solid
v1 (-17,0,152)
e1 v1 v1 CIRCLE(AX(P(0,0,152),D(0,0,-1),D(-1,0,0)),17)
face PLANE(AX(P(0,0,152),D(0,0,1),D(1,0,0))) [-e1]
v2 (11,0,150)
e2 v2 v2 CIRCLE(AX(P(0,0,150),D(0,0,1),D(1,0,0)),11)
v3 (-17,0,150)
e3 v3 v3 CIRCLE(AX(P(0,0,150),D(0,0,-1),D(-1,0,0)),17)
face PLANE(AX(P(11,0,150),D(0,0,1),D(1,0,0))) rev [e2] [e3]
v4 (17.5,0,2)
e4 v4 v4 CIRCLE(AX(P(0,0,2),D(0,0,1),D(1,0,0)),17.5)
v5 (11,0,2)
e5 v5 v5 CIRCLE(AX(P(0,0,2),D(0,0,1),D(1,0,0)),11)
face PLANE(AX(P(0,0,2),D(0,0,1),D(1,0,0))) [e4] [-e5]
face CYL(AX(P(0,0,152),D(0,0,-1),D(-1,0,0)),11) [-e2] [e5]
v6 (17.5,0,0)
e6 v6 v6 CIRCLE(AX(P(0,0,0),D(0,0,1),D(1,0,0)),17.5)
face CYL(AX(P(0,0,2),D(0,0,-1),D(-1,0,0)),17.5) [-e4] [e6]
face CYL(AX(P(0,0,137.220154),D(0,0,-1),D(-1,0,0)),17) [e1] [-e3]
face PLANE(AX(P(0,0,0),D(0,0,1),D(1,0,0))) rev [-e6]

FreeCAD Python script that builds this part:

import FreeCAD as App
import Part
import Sketcher
Q = App.Units.Quantity


def add_polygon(sketch, points):
    """Adds a closed chain of lines whose ends are joined by coincident constraints."""
    first, n = sketch.GeometryCount, len(points)
    for a, b in zip(points, points[1:] + points[:1]):
        sketch.addGeometry(Part.LineSegment(App.Vector(*a, 0), App.Vector(*b, 0)), False)
    for i in range(n):
        sketch.addConstraint(Sketcher.Constraint("Coincident", first + i, 2, first + (i + 1) % n, 1))

doc = App.newDocument("Part")
body = doc.addObject("PartDesign::Body", "Body")

# Sketch on XY plane
sketch1 = body.newObject("Sketcher::SketchObject", "Sketch")
sketch1.AttachmentSupport = (doc.getObject("XY_Plane"), [""])
sketch1.MapMode = "FlatFace"
sketch1.addGeometry(Part.Circle(App.Vector(0, 0, 0), App.Vector(0, 0, 1), 18), False)
sketch1.addConstraint([
    Sketcher.Constraint("Coincident", 0, 3, -1, 1),
    Sketcher.Constraint("Diameter", 0, Q("35 mm")),
])
pad1 = body.newObject("PartDesign::Pad", "Pad")
pad1.Profile = sketch1
pad1.Length = 2

# Sketch on XY plane
sketch2 = body.newObject("Sketcher::SketchObject", "Sketch001")
sketch2.AttachmentSupport = (doc.getObject("XY_Plane"), [""])
sketch2.MapMode = "FlatFace"
sketch2.AttachmentOffset = App.Placement(App.Vector(0, 0, 2), App.Rotation())
sketch2.addGeometry(Part.Circle(App.Vector(0, 0, 0), App.Vector(0, 0, 1), 11), False)
sketch2.addConstraint([
    Sketcher.Constraint("Coincident", 0, 3, -1, 1),
    Sketcher.Constraint("Diameter", 0, Q("22 mm")),
])
pad2 = body.newObject("PartDesign::Pad", "Pad001")
pad2.Profile = sketch2
pad2.Length = 150

# Sketch on XZ plane
sketch3 = body.newObject("Sketcher::SketchObject", "Sketch002")
sketch3.AttachmentSupport = (doc.getObject("XZ_Plane"), [""])
sketch3.MapMode = "FlatFace"
add_polygon(sketch3, [(11, 150), (11, 152), (17, 152), (17, 150)])  # lines 0-3
sketch3.addConstraint([
    Sketcher.Constraint("Vertical", 0),
    Sketcher.Constraint("Horizontal", 1),
    Sketcher.Constraint("Vertical", 2),
    Sketcher.Constraint("Horizontal", 3),
    Sketcher.Constraint("DistanceX", 1, 1, 1, 2, Q("6 mm")),
    Sketcher.Constraint("DistanceY", 0, 1, 0, 2, Q("2 mm")),
    Sketcher.Constraint("DistanceX", -1, 1, 0, 2, Q("11 mm")),
    Sketcher.Constraint("DistanceY", -1, 1, 0, 2, Q("152 mm")),
])
revolution = body.newObject("PartDesign::Revolution", "Revolution")
revolution.Profile = sketch3
revolution.ReferenceAxis = (sketch3, ["V_Axis"])
revolution.Angle = 360

doc.recompute()
